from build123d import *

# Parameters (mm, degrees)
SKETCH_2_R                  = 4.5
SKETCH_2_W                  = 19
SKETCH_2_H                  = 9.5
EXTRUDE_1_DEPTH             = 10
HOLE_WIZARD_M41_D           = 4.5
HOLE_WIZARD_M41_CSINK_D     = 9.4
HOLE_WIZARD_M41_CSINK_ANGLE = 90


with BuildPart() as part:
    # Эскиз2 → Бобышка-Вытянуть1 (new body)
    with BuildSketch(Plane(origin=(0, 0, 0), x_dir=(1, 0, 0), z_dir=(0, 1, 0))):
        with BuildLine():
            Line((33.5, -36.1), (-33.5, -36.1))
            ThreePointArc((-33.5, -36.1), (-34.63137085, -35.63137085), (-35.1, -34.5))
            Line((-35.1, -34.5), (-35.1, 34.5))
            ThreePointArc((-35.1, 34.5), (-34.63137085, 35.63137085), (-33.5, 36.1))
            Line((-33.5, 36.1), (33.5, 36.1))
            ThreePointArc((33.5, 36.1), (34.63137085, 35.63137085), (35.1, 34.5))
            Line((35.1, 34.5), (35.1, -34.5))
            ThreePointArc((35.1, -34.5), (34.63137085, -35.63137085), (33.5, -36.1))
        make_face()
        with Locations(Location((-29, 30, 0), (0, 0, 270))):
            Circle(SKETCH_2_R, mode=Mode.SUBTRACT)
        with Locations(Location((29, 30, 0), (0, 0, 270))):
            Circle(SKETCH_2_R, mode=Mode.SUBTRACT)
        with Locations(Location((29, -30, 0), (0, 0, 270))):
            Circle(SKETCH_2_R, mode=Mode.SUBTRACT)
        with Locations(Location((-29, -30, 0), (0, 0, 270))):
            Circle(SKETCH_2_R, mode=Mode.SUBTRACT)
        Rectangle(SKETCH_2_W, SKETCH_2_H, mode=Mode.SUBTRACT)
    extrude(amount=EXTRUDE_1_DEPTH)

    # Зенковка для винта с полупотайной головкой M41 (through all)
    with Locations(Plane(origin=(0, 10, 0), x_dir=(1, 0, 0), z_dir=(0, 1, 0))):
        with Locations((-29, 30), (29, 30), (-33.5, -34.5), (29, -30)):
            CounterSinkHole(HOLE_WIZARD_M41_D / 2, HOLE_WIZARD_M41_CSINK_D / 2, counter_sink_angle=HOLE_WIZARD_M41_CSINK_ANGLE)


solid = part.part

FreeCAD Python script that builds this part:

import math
import FreeCAD as App
import Part
import Sketcher


def add_polygon(sketch, points):
    """Adds a closed chain of lines whose ends are joined by coincident constraints."""
    first, n = sketch.GeometryCount, len(points)
    for a, b in zip(points, points[1:] + points[:1]):
        sketch.addGeometry(Part.LineSegment(App.Vector(*a, 0), App.Vector(*b, 0)), False)
    for i in range(n):
        sketch.addConstraint(Sketcher.Constraint("Coincident", first + i, 2, first + (i + 1) % n, 1))

doc = App.newDocument("Part")
body = doc.addObject("PartDesign::Body", "Body")

sketch1 = doc.addObject("Sketcher::SketchObject", "Sketch")
body.addObject(sketch1)
sketch1.AttachmentSupport = (doc.XZ_Plane, [""])
sketch1.MapMode = "FlatFace"
sketch1.addGeometry(Part.LineSegment(App.Vector(-33.5, 36.1, 0), App.Vector(33.5, 36.1, 0)), False)
sketch1.addGeometry(Part.ArcOfCircle(Part.Circle(App.Vector(33.5, 34.5, 0), App.Vector(0, 0, 1), 1.6), math.radians(0), math.radians(90)), False)
sketch1.addGeometry(Part.LineSegment(App.Vector(35.1, 34.5, 0), App.Vector(35.1, -34.5, 0)), False)
sketch1.addGeometry(Part.ArcOfCircle(Part.Circle(App.Vector(33.5, -34.5, 0), App.Vector(0, 0, 1), 1.6), math.radians(-90), math.radians(0)), False)
sketch1.addGeometry(Part.LineSegment(App.Vector(33.5, -36.1, 0), App.Vector(-33.5, -36.1, 0)), False)
sketch1.addGeometry(Part.ArcOfCircle(Part.Circle(App.Vector(-33.5, -34.5, 0), App.Vector(0, 0, 1), 1.6), math.radians(180), math.radians(270)), False)
sketch1.addGeometry(Part.LineSegment(App.Vector(-35.1, -34.5, 0), App.Vector(-35.1, 34.5, 0)), False)
sketch1.addGeometry(Part.ArcOfCircle(Part.Circle(App.Vector(-33.5, 34.5, 0), App.Vector(0, 0, 1), 1.6), math.radians(90), math.radians(180)), False)
sketch1.addGeometry(Part.Circle(App.Vector(29, 30, 0), App.Vector(0, 0, 1), 4.5), False)
sketch1.addGeometry(Part.Circle(App.Vector(-29, 30, 0), App.Vector(0, 0, 1), 4.5), False)
sketch1.addGeometry(Part.Circle(App.Vector(29, -30, 0), App.Vector(0, 0, 1), 4.5), False)
add_polygon(sketch1, [(-9.5, 4.8), (-9.5, -4.8), (9.5, -4.8), (9.5, 4.8)])
sketch1.addGeometry(Part.Circle(App.Vector(-29, -30, 0), App.Vector(0, 0, 1), 4.5), False)
sketch1.addConstraint([
    Sketcher.Constraint("Tangent", 0, 2, 1, 2),
    Sketcher.Constraint("Tangent", 1, 1, 2, 1),
    Sketcher.Constraint("Tangent", 2, 2, 3, 2),
    Sketcher.Constraint("Tangent", 3, 1, 4, 1),
    Sketcher.Constraint("Tangent", 4, 2, 5, 2),
    Sketcher.Constraint("Tangent", 5, 1, 6, 1),
    Sketcher.Constraint("Tangent", 6, 2, 7, 2),
    Sketcher.Constraint("Tangent", 7, 1, 0, 1),
    Sketcher.Constraint("Horizontal", 0),
    Sketcher.Constraint("Vertical", 2),
    Sketcher.Constraint("Horizontal", 4),
    Sketcher.Constraint("Vertical", 6),
    Sketcher.Constraint("Vertical", 11),
    Sketcher.Constraint("Horizontal", 12),
    Sketcher.Constraint("Vertical", 13),
    Sketcher.Constraint("Horizontal", 14),
    Sketcher.Constraint("Equal", 1, 3),
    Sketcher.Constraint("Equal", 3, 5),
    Sketcher.Constraint("Equal", 5, 7),
    Sketcher.Constraint("Equal", 8, 9),
    Sketcher.Constraint("Equal", 9, 10),
    Sketcher.Constraint("Equal", 10, 15),
    Sketcher.Constraint("Symmetric", 1, 3, 5, 3, -1, 1),
    Sketcher.Constraint("Symmetric", 9, 3, 10, 3, -1, 1),
    Sketcher.Constraint("Symmetric", 8, 3, 15, 3, -1, 1),
    Sketcher.Constraint("Symmetric", 11, 2, 13, 2, -1, 1),
    Sketcher.Constraint("Symmetric", 8, 3, 9, 3, -2),
    Sketcher.Constraint("Diameter", 8, 9.0),
    Sketcher.Constraint("Radius", 1, 1.6),
    Sketcher.Constraint("DistanceX", 0, 1, 0, 2, 67.0),
    Sketcher.Constraint("DistanceX", 12, 1, 12, 2, 19.0),
    Sketcher.Constraint("DistanceY", 2, 2, 2, 1, 69.0),
    Sketcher.Constraint("DistanceY", 11, 2, 11, 1, 9.5),
    Sketcher.Constraint("DistanceX", -1, 1, 8, 3, 29.0),
    Sketcher.Constraint("DistanceY", -1, 1, 8, 3, 30.0),
])
pad1 = doc.addObject("PartDesign::Pad", "Pad")
body.addObject(pad1)
pad1.Profile = sketch1
pad1.Length = 10
pad1.Reversed = True

sketch2 = doc.addObject("Sketcher::SketchObject", "Sketch001")
body.addObject(sketch2)
sketch2.AttachmentSupport = (doc.XZ_Plane, [""])
sketch2.MapMode = "FlatFace"
sketch2.AttachmentOffset = App.Placement(App.Vector(0, 0, -10), App.Rotation())
sketch2.addGeometry([
    Part.Circle(App.Vector(-29, -30, 0), App.Vector(0, 0, 1), 2.2),
    Part.Circle(App.Vector(29, -30, 0), App.Vector(0, 0, 1), 2.2),
    Part.Circle(App.Vector(-33.5, 34.5, 0), App.Vector(0, 0, 1), 2.2),
    Part.Circle(App.Vector(29, 30, 0), App.Vector(0, 0, 1), 2.2),
], False)
sketch2.addConstraint([
    Sketcher.Constraint("Equal", 0, 1),
    Sketcher.Constraint("Equal", 1, 2),
    Sketcher.Constraint("Equal", 2, 3),
    Sketcher.Constraint("Symmetric", 0, 3, 3, 3, -1, 1),
    Sketcher.Constraint("Symmetric", 0, 3, 1, 3, -2),
    Sketcher.Constraint("Diameter", 0, 4.5),
    Sketcher.Constraint("DistanceX", 0, 3, -1, 1, 29.0),
    Sketcher.Constraint("DistanceY", 0, 3, -1, 1, 30.0),
    Sketcher.Constraint("DistanceX", 2, 3, -1, 1, 33.5),
    Sketcher.Constraint("DistanceY", -1, 1, 2, 3, 34.5),
])
doc.recompute()
hole = doc.addObject("PartDesign::Hole", "Hole")
body.addObject(hole)
hole.Profile = sketch2
hole.ThreadType = "None"
hole.Diameter = 4.5
hole.DepthType = "ThroughAll"
hole.HoleCutType = "Countersink"
hole.HoleCutDiameter = 9.4
hole.HoleCutCountersinkAngle = 90
hole.Reversed = True

doc.recompute()
